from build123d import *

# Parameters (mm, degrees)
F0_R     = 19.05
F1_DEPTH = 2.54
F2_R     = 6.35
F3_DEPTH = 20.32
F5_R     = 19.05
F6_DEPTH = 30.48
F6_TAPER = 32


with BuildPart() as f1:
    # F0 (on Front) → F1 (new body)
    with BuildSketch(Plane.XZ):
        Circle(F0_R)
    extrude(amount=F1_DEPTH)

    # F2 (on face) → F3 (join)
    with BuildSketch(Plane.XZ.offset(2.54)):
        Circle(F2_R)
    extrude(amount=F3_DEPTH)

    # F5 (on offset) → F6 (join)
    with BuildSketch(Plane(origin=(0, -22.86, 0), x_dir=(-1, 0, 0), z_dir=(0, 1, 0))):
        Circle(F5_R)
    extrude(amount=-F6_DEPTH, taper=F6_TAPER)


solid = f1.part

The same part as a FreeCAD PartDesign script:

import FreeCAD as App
import Part
import Sketcher
from FreeCAD import Vector
Q = App.Units.Quantity

doc = App.newDocument("Part")
params = doc.addObject("Spreadsheet::Sheet", "Params")
for row, (alias, value) in enumerate([
    ("sketch1_diameter", "1.5 in"),
    ("pad1_length", "0.1 in"),
    ("sketch2_diameter", "0.5 in"),
    ("pad2_length", "0.8 in"),
    ("sketch3_diameter", "1.5 in"),
    ("pad3_length", "1.2 in"),
    ("pad3_taper", "-32 deg"),
], start=1):
    params.set(f"A{row}", alias)
    params.set(f"B{row}", "=" + value)
    params.setAlias(f"B{row}", alias)

body = doc.addObject("PartDesign::Body", "Body")

# Sketch on XZ plane
sketch1 = body.newObject("Sketcher::SketchObject", "Sketch")
sketch1.AttachmentSupport = (doc.getObject("XZ_Plane"), [""])
sketch1.MapMode = "FlatFace"
sketch1.addGeometry(Part.Circle(Vector(0, 0, 0), Vector(0, 0, 1), 19), False)
sketch1.addConstraint([
    Sketcher.Constraint("Coincident", 0, 3, -1, 1),
    Sketcher.Constraint("Diameter", 0, Q("1.5 in")),
])
sketch1.setExpression("Constraints[1]", "Params.sketch1_diameter")
pad1 = body.newObject("PartDesign::Pad", "Pad")
pad1.Profile = sketch1
pad1.setExpression("Length", "Params.pad1_length")

# Sketch on XZ plane
sketch2 = body.newObject("Sketcher::SketchObject", "Sketch001")
sketch2.AttachmentSupport = (doc.getObject("XZ_Plane"), [""])
sketch2.MapMode = "FlatFace"
sketch2.AttachmentOffset = App.Placement(Vector(0, 0, 0.1 * 25.4), App.Rotation())
sketch2.addGeometry(Part.Circle(Vector(0, 0, 0), Vector(0, 0, 1), 6), False)
sketch2.addConstraint([
    Sketcher.Constraint("Coincident", 0, 3, -1, 1),
    Sketcher.Constraint("Diameter", 0, Q("0.5 in")),
])
sketch2.setExpression("Constraints[1]", "Params.sketch2_diameter")
pad2 = body.newObject("PartDesign::Pad", "Pad001")
pad2.Profile = sketch2
pad2.setExpression("Length", "Params.pad2_length")

# Sketch on XZ plane
sketch3 = body.newObject("Sketcher::SketchObject", "Sketch002")
sketch3.AttachmentSupport = (doc.getObject("XZ_Plane"), [""])
sketch3.MapMode = "FlatFace"
sketch3.AttachmentOffset = App.Placement(Vector(0, 0, 0.9 * 25.4), App.Rotation())
sketch3.addGeometry(Part.Circle(Vector(0, 0, 0), Vector(0, 0, 1), 19), False)
sketch3.addConstraint([
    Sketcher.Constraint("Coincident", 0, 3, -1, 1),
    Sketcher.Constraint("Diameter", 0, Q("1.5 in")),
])
sketch3.setExpression("Constraints[1]", "Params.sketch3_diameter")
pad3 = body.newObject("PartDesign::Pad", "Pad002")
pad3.Profile = sketch3
pad3.setExpression("Length", "Params.pad3_length")
pad3.setExpression("TaperAngle", "Params.pad3_taper")

doc.recompute()
